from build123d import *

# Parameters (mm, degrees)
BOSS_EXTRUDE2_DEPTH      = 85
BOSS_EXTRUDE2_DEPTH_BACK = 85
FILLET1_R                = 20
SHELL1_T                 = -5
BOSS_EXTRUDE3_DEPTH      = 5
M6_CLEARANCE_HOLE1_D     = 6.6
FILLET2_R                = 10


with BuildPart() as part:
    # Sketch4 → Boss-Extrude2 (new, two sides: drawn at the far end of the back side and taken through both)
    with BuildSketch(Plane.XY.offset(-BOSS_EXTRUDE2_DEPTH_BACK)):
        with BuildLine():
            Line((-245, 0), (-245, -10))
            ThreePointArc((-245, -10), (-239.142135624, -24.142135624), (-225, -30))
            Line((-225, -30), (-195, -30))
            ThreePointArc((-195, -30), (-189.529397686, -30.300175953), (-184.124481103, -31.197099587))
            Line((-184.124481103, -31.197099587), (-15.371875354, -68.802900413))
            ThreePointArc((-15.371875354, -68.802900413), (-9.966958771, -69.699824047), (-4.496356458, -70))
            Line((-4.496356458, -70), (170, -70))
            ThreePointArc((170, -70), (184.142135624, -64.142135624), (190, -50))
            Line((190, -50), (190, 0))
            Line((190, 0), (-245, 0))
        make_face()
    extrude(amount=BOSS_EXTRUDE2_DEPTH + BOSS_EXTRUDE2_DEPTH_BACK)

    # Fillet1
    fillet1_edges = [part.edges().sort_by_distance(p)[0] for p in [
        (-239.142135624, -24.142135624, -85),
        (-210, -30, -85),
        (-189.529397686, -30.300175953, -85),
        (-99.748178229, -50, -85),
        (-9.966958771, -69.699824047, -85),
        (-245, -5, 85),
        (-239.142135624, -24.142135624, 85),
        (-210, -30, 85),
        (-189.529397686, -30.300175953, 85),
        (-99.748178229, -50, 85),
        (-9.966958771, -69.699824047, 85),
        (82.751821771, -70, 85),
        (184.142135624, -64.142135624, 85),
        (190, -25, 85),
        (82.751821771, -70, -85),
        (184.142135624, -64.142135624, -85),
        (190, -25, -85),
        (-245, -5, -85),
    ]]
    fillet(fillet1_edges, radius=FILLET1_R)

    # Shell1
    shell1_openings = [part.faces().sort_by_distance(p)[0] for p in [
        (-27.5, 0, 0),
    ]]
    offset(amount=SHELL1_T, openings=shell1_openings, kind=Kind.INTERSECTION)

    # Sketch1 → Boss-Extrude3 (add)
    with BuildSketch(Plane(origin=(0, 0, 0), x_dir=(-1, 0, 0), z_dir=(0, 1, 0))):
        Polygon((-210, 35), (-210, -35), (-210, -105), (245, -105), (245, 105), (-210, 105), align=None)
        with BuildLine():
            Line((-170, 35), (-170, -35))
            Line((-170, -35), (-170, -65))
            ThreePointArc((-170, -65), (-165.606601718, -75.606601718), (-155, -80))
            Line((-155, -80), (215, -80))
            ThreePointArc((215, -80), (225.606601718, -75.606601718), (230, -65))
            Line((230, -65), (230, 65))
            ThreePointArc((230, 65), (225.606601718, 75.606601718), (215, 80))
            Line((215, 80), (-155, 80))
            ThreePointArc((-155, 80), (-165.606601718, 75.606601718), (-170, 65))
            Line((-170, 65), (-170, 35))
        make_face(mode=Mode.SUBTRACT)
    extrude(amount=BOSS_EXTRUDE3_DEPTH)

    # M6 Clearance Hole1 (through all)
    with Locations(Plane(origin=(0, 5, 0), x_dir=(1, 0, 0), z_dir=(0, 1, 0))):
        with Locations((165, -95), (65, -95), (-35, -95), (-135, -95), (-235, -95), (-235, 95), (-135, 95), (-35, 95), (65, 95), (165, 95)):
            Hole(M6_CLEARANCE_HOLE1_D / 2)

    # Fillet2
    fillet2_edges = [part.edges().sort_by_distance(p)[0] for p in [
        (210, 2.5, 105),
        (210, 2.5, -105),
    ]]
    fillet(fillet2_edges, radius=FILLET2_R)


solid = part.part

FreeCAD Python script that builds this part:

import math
import FreeCAD as App
import Part
import Sketcher


def edges_at(feature, points):
    """Names of the edges that pass closest to the given points."""
    edges = feature.Shape.Edges
    near = lambda p: min(range(len(edges)), key=lambda i: edges[i].distToShape(Part.Vertex(*p))[0])
    return sorted({f"Edge{near(p) + 1}" for p in points})


def faces_at(feature, points):
    """Names of the faces that lie closest to the given points."""
    faces = feature.Shape.Faces
    near = lambda p: min(range(len(faces)), key=lambda i: faces[i].distToShape(Part.Vertex(*p))[0])
    return sorted({f"Face{near(p) + 1}" for p in points})


def add_polygon(sketch, points):
    """Adds a closed chain of lines whose ends are joined by coincident constraints."""
    first, n = sketch.GeometryCount, len(points)
    for a, b in zip(points, points[1:] + points[:1]):
        sketch.addGeometry(Part.LineSegment(App.Vector(*a, 0), App.Vector(*b, 0)), False)
    for i in range(n):
        sketch.addConstraint(Sketcher.Constraint("Coincident", first + i, 2, first + (i + 1) % n, 1))

doc = App.newDocument("Part")
body = doc.addObject("PartDesign::Body", "Body")

# Sketch on XY plane
sketch1 = doc.addObject("Sketcher::SketchObject", "Sketch")
body.addObject(sketch1)
sketch1.AttachmentSupport = (doc.XY_Plane, [""])
sketch1.MapMode = "FlatFace"
sketch1.addGeometry([
    Part.LineSegment(App.Vector(-245, 0, 0), App.Vector(-245, -10, 0)),  # 0
    Part.ArcOfCircle(Part.Circle(App.Vector(-225, -10, 0), App.Vector(0, 0, 1), 20), math.radians(180), math.radians(270)),  # 1
    Part.LineSegment(App.Vector(-225, -30, 0), App.Vector(-195, -30, 0)),  # 2
    Part.ArcOfCircle(Part.Circle(App.Vector(-195, -80, 0), App.Vector(0, 0, 1), 50), math.radians(77.437153), math.radians(90)),  # 3
    Part.LineSegment(App.Vector(-184.124481, -31.1971, 0), App.Vector(-15.371875, -68.8029, 0)),  # 4
    Part.ArcOfCircle(Part.Circle(App.Vector(-4.496356, -20, 0), App.Vector(0, 0, 1), 50), math.radians(-102.562847), math.radians(-90)),  # 5
    Part.LineSegment(App.Vector(-4.496356, -70, 0), App.Vector(170, -70, 0)),  # 6
    Part.ArcOfCircle(Part.Circle(App.Vector(170, -50, 0), App.Vector(0, 0, 1), 20), math.radians(-90), math.radians(0)),  # 7
    Part.LineSegment(App.Vector(190, -50, 0), App.Vector(190, 0, 0)),  # 8
    Part.LineSegment(App.Vector(190, 0, 0), App.Vector(-245, 0, 0)),  # 9
], False)
sketch1.addConstraint([
    Sketcher.Constraint("Coincident", 0, 2, 1, 1),
    Sketcher.Constraint("Coincident", 1, 2, 2, 1),
    Sketcher.Constraint("Coincident", 2, 2, 3, 2),
    Sketcher.Constraint("Coincident", 3, 1, 4, 1),
    Sketcher.Constraint("Coincident", 4, 2, 5, 1),
    Sketcher.Constraint("Coincident", 5, 2, 6, 1),
    Sketcher.Constraint("Coincident", 6, 2, 7, 1),
    Sketcher.Constraint("Coincident", 7, 2, 8, 1),
    Sketcher.Constraint("Coincident", 8, 2, 9, 1),
    Sketcher.Constraint("Coincident", 9, 2, 0, 1),
    Sketcher.Constraint("Vertical", 0),
    Sketcher.Constraint("Horizontal", 2),
    Sketcher.Constraint("Horizontal", 6),
    Sketcher.Constraint("Vertical", 8),
    Sketcher.Constraint("Horizontal", 9),
    Sketcher.Constraint("PointOnObject", 8, 2, -1),
    Sketcher.Constraint("Radius", 1, 20.0),
    Sketcher.Constraint("Radius", 3, 50.0),
    Sketcher.Constraint("Radius", 5, 50.0),
    Sketcher.Constraint("Radius", 7, 20.0),
    Sketcher.Constraint("DistanceX", 2, 1, 2, 2, 30.0),
    Sketcher.Constraint("DistanceX", 9, 2, 9, 1, 435.0),
    Sketcher.Constraint("DistanceY", 0, 2, 0, 1, 10.0),
    Sketcher.Constraint("DistanceY", 8, 1, 8, 2, 50.0),
    Sketcher.Constraint("DistanceX", 1, 3, -1, 1, 225.0),
    Sketcher.Constraint("DistanceY", 1, 3, -1, 1, 10.0),
    Sketcher.Constraint("DistanceX", 3, 3, -1, 1, 195.0),
    Sketcher.Constraint("DistanceY", 5, 3, -1, 1, 20.0),
    Sketcher.Constraint("DistanceX", 1, 2, -1, 1, 225.0),
    Sketcher.Constraint("DistanceX", -1, 1, 6, 2, 170.0),
    Sketcher.Constraint("DistanceY", 3, 1, -1, 1, 31.1971),
    Sketcher.Constraint("DistanceY", 4, 2, -1, 1, 68.8029),
    Sketcher.Constraint("DistanceX", 6, 1, 6, 2, 174.496356),
    Sketcher.Constraint("DistanceX", 4, 2, 5, 2, 10.875519),
])
pad1 = doc.addObject("PartDesign::Pad", "Pad")
body.addObject(pad1)
pad1.Profile = sketch1
pad1.Type = "TwoLengths"
pad1.Length = 85
pad1.Length2 = 85
doc.recompute()

fillet = doc.addObject("PartDesign::Fillet", "Fillet")
body.addObject(fillet)
fillet.Base = (pad1, edges_at(pad1, [
    (-239.142, -24.142, -85),
    (-210, -30, -85),
    (-189.529, -30.3, -85),
    (-99.748, -50, -85),
    (-9.967, -69.7, -85),
    (-245, -5, 85),
    (-239.142, -24.142, 85),
    (-210, -30, 85),
    (-189.529, -30.3, 85),
    (-99.748, -50, 85),
    (-9.967, -69.7, 85),
    (82.752, -70, 85),
    (184.142, -64.142, 85),
    (190, -25, 85),
    (82.752, -70, -85),
    (184.142, -64.142, -85),
    (190, -25, -85),
    (-245, -5, -85),
]))
fillet.Radius = 20
doc.recompute()

thickness = doc.addObject("PartDesign::Thickness", "Thickness")
body.addObject(thickness)
thickness.Base = (fillet, faces_at(fillet, [(-27.5, 0, 0)]))
thickness.Value = 5
thickness.Reversed = True
thickness.Join = "Intersection"

# Sketch on XZ plane
sketch2 = doc.addObject("Sketcher::SketchObject", "Sketch001")
body.addObject(sketch2)
sketch2.AttachmentSupport = (doc.XZ_Plane, [""])
sketch2.MapMode = "FlatFace"
add_polygon(sketch2, [(210, -105), (-245, -105), (-245, 105), (210, 105)])  # lines 0-3
sketch2.addGeometry(Part.ArcOfCircle(Part.Circle(App.Vector(155, -65, 0), App.Vector(0, 0, 1), 15), math.radians(-90), math.radians(0)), False)  # 4
sketch2.addGeometry(Part.LineSegment(App.Vector(170, -65, 0), App.Vector(170, 65, 0)), False)  # 5
sketch2.addGeometry(Part.ArcOfCircle(Part.Circle(App.Vector(155, 65, 0), App.Vector(0, 0, 1), 15), math.radians(0), math.radians(90)), False)  # 6
sketch2.addGeometry(Part.LineSegment(App.Vector(155, 80, 0), App.Vector(-215, 80, 0)), False)  # 7
sketch2.addGeometry(Part.ArcOfCircle(Part.Circle(App.Vector(-215, 65, 0), App.Vector(0, 0, 1), 15), math.radians(90), math.radians(180)), False)  # 8
sketch2.addGeometry(Part.LineSegment(App.Vector(-230, 65, 0), App.Vector(-230, -65, 0)), False)  # 9
sketch2.addGeometry(Part.ArcOfCircle(Part.Circle(App.Vector(-215, -65, 0), App.Vector(0, 0, 1), 15), math.radians(180), math.radians(270)), False)  # 10
sketch2.addGeometry(Part.LineSegment(App.Vector(-215, -80, 0), App.Vector(155, -80, 0)), False)  # 11
sketch2.addConstraint([
    Sketcher.Constraint("Tangent", 4, 2, 5, 1),
    Sketcher.Constraint("Tangent", 5, 2, 6, 1),
    Sketcher.Constraint("Tangent", 6, 2, 7, 1),
    Sketcher.Constraint("Tangent", 7, 2, 8, 1),
    Sketcher.Constraint("Tangent", 8, 2, 9, 1),
    Sketcher.Constraint("Tangent", 9, 2, 10, 1),
    Sketcher.Constraint("Tangent", 10, 2, 11, 1),
    Sketcher.Constraint("Tangent", 11, 2, 4, 1),
    Sketcher.Constraint("Horizontal", 0),
    Sketcher.Constraint("Vertical", 1),
    Sketcher.Constraint("Horizontal", 2),
    Sketcher.Constraint("Vertical", 3),
    Sketcher.Constraint("Vertical", 5),
    Sketcher.Constraint("Horizontal", 7),
    Sketcher.Constraint("Vertical", 9),
    Sketcher.Constraint("Horizontal", 11),
    Sketcher.Constraint("Equal", 4, 6),
    Sketcher.Constraint("Equal", 6, 8),
    Sketcher.Constraint("Equal", 8, 10),
    Sketcher.Constraint("Radius", 4, 15.0),
    Sketcher.Constraint("DistanceX", 0, 2, 0, 1, 455.0),
    Sketcher.Constraint("DistanceX", 7, 2, 7, 1, 370.0),
    Sketcher.Constraint("DistanceY", 1, 1, 1, 2, 210.0),
    Sketcher.Constraint("DistanceY", 5, 1, 5, 2, 130.0),
    Sketcher.Constraint("DistanceX", -1, 1, 4, 3, 155.0),
    Sketcher.Constraint("DistanceY", 4, 3, -1, 1, 65.0),
    Sketcher.Constraint("DistanceX", 0, 2, -1, 1, 245.0),
    Sketcher.Constraint("DistanceY", 0, 2, -1, 1, 105.0),
])
pad2 = doc.addObject("PartDesign::Pad", "Pad001")
body.addObject(pad2)
pad2.Profile = sketch2
pad2.Length = 5
pad2.Reversed = True

# Sketch on XZ plane
sketch3 = doc.addObject("Sketcher::SketchObject", "Sketch002")
body.addObject(sketch3)
sketch3.AttachmentSupport = (doc.XZ_Plane, [""])
sketch3.MapMode = "FlatFace"
sketch3.AttachmentOffset = App.Placement(App.Vector(0, 0, -5), App.Rotation())
sketch3.addGeometry([
    Part.Circle(App.Vector(165, 95, 0), App.Vector(0, 0, 1), 3.3),  # 0
    Part.Circle(App.Vector(65, 95, 0), App.Vector(0, 0, 1), 3.3),  # 1
    Part.Circle(App.Vector(-35, 95, 0), App.Vector(0, 0, 1), 3.3),  # 2
    Part.Circle(App.Vector(-135, 95, 0), App.Vector(0, 0, 1), 3.3),  # 3
    Part.Circle(App.Vector(-235, 95, 0), App.Vector(0, 0, 1), 3.3),  # 4
    Part.Circle(App.Vector(-235, -95, 0), App.Vector(0, 0, 1), 3.3),  # 5
    Part.Circle(App.Vector(-135, -95, 0), App.Vector(0, 0, 1), 3.3),  # 6
    Part.Circle(App.Vector(-35, -95, 0), App.Vector(0, 0, 1), 3.3),  # 7
    Part.Circle(App.Vector(65, -95, 0), App.Vector(0, 0, 1), 3.3),  # 8
    Part.Circle(App.Vector(165, -95, 0), App.Vector(0, 0, 1), 3.3),  # 9
], False)
sketch3.addConstraint([
    Sketcher.Constraint("Equal", 0, 1),
    Sketcher.Constraint("Equal", 1, 2),
    Sketcher.Constraint("Equal", 2, 3),
    Sketcher.Constraint("Equal", 3, 4),
    Sketcher.Constraint("Equal", 4, 5),
    Sketcher.Constraint("Equal", 5, 6),
    Sketcher.Constraint("Equal", 6, 7),
    Sketcher.Constraint("Equal", 7, 8),
    Sketcher.Constraint("Equal", 8, 9),
    Sketcher.Constraint("Symmetric", 4, 3, 5, 3, -1),
    Sketcher.Constraint("Symmetric", 3, 3, 6, 3, -1),
    Sketcher.Constraint("Symmetric", 2, 3, 7, 3, -1),
    Sketcher.Constraint("Symmetric", 1, 3, 8, 3, -1),
    Sketcher.Constraint("Symmetric", 0, 3, 9, 3, -1),
    Sketcher.Constraint("Horizontal", 0, 3, 1, 3),
    Sketcher.Constraint("Horizontal", 1, 3, 2, 3),
    Sketcher.Constraint("Horizontal", 2, 3, 3, 3),
    Sketcher.Constraint("Horizontal", 3, 3, 4, 3),
    Sketcher.Constraint("Diameter", 0, 6.6),
    Sketcher.Constraint("DistanceX", -1, 1, 0, 3, 165.0),
    Sketcher.Constraint("DistanceY", -1, 1, 0, 3, 95.0),
    Sketcher.Constraint("DistanceX", -1, 1, 1, 3, 65.0),
    Sketcher.Constraint("DistanceX", 2, 3, -1, 1, 35.0),
    Sketcher.Constraint("DistanceX", 3, 3, -1, 1, 135.0),
    Sketcher.Constraint("DistanceX", 4, 3, -1, 1, 235.0),
])
doc.recompute()
hole = doc.addObject("PartDesign::Hole", "Hole")
body.addObject(hole)
hole.Profile = sketch3
hole.ThreadType = "None"
hole.Diameter = 6.6
hole.DepthType = "ThroughAll"
hole.Reversed = True
doc.recompute()

fillet2 = doc.addObject("PartDesign::Fillet", "Fillet001")
body.addObject(fillet2)
fillet2.Base = (hole, edges_at(hole, [(210, 2.5, 105), (210, 2.5, -105)]))
fillet2.Radius = 10

doc.recompute()
